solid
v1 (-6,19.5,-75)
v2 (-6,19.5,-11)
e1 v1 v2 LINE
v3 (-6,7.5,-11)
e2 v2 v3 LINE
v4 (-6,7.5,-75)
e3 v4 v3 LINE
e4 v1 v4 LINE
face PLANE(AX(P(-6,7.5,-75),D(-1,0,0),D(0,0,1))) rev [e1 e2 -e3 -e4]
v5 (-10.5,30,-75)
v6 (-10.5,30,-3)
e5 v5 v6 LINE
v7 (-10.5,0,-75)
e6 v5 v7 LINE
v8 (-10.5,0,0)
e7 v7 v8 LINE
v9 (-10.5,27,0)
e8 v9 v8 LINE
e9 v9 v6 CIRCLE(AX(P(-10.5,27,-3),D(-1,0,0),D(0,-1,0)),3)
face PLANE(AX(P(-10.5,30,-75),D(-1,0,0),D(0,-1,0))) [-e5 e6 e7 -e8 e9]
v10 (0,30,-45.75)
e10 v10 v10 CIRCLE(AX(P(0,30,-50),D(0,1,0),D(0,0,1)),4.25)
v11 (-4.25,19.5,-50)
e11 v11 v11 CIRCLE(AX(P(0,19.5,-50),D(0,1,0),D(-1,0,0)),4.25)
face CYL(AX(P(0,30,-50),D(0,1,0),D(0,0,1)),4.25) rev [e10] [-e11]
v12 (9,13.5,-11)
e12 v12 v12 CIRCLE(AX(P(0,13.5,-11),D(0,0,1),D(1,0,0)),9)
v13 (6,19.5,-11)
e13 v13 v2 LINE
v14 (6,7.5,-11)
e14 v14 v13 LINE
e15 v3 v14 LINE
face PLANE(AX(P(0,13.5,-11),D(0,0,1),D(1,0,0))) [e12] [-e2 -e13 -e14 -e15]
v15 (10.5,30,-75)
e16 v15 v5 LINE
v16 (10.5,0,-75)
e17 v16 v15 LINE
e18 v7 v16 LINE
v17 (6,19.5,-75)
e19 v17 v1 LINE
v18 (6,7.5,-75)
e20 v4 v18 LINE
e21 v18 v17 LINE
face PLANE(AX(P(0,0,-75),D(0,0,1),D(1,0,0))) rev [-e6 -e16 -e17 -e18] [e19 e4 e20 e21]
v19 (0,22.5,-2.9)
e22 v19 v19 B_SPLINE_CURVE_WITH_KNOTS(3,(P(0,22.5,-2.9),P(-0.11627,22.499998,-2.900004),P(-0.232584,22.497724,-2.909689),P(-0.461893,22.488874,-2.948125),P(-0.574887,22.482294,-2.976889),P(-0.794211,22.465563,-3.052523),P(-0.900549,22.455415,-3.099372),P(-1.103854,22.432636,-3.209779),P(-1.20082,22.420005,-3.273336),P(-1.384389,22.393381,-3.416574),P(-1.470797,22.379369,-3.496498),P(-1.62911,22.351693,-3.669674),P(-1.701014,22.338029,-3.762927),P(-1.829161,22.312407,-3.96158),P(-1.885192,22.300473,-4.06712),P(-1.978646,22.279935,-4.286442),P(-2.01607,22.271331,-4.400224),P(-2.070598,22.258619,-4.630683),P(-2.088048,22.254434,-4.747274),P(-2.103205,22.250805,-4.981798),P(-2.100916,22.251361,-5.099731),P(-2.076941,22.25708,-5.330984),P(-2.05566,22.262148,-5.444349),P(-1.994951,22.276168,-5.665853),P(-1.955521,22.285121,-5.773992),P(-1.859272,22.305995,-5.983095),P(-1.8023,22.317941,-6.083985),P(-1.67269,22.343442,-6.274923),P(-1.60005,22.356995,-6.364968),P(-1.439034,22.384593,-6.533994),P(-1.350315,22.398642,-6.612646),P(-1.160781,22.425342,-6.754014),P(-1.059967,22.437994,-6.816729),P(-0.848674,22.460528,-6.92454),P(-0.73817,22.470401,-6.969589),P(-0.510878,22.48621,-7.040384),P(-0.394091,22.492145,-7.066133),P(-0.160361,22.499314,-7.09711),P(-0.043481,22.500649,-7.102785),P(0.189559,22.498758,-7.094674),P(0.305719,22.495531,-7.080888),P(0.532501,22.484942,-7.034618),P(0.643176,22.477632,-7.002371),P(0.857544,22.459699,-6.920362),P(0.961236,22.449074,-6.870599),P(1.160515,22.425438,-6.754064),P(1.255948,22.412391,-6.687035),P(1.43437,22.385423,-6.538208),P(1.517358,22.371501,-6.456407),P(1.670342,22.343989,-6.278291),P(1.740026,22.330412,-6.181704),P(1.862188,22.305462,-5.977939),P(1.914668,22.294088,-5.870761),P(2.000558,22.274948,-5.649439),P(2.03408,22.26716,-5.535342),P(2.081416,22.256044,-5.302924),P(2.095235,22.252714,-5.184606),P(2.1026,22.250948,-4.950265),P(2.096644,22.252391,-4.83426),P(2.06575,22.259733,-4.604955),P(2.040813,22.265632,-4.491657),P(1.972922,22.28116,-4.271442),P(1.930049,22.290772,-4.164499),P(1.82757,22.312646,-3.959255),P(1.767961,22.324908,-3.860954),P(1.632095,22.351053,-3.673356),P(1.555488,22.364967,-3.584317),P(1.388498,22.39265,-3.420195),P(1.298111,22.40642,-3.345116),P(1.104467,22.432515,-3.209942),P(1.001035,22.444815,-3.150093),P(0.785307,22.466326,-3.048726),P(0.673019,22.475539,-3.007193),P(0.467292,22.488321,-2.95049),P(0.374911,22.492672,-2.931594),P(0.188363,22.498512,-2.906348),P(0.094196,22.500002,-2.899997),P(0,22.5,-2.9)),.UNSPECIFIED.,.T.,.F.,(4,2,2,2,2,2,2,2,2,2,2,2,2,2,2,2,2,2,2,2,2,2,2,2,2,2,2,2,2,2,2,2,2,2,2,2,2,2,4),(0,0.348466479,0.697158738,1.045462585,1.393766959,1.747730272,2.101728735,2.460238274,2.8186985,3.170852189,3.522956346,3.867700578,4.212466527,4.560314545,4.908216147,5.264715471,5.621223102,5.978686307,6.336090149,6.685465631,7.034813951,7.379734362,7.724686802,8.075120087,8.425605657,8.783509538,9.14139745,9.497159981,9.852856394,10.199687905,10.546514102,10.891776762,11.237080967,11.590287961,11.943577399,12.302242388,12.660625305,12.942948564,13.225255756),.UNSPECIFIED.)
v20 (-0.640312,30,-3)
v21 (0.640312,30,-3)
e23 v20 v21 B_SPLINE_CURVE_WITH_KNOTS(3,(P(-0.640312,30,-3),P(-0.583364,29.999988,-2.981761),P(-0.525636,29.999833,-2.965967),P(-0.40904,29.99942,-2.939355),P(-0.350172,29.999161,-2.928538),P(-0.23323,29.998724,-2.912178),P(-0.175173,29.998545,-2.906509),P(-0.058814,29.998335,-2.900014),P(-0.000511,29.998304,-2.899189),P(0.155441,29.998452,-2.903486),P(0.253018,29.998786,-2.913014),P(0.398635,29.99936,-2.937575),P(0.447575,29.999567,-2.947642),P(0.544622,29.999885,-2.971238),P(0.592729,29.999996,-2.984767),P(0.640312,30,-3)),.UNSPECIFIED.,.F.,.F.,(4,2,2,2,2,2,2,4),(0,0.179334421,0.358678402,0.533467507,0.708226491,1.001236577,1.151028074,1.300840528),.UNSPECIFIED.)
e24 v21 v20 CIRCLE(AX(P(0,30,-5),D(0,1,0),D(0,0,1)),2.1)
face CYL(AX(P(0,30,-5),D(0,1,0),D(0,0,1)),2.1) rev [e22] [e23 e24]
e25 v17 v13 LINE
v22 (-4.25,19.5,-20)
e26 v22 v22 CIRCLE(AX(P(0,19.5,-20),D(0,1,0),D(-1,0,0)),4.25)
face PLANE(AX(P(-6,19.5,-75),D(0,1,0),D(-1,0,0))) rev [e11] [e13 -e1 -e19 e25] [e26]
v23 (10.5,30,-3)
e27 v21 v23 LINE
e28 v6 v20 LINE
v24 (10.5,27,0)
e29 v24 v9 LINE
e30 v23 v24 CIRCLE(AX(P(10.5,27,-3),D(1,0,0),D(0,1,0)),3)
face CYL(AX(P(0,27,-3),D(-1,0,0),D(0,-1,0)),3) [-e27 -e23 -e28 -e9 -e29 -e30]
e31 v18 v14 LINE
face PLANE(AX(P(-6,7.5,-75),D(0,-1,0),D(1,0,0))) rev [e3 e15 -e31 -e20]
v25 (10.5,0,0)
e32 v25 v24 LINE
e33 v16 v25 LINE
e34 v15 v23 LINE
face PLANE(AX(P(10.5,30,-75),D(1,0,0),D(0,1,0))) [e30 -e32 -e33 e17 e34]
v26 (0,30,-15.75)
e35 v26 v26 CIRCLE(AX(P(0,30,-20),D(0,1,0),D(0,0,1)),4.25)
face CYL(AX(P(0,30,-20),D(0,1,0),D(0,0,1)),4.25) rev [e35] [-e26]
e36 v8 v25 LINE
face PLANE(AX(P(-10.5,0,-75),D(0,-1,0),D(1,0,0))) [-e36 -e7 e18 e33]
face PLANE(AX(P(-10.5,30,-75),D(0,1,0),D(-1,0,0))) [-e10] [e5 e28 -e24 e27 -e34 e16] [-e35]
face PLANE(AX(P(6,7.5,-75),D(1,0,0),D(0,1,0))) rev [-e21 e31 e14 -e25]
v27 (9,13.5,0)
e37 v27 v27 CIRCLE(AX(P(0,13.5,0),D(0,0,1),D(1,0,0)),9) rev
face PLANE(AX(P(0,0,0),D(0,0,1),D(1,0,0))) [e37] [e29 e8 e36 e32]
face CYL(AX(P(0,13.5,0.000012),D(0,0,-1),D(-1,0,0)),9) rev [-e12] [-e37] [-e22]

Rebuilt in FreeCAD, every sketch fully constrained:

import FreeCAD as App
import Part
import Sketcher

V = App.Vector


def edges_at(feature, points):
    """Names of the edges that pass closest to the given points."""
    edges = feature.Shape.Edges
    near = lambda p: min(range(len(edges)), key=lambda i: edges[i].distToShape(Part.Vertex(*p))[0])
    return sorted({f"Edge{near(p) + 1}" for p in points})


def add_polygon(sketch, points):
    """Adds a closed chain of lines whose ends are joined by coincident constraints."""
    first, n = sketch.GeometryCount, len(points)
    for a, b in zip(points, points[1:] + points[:1]):
        sketch.addGeometry(Part.LineSegment(App.Vector(*a, 0), App.Vector(*b, 0)), False)
    for i in range(n):
        sketch.addConstraint(Sketcher.Constraint("Coincident", first + i, 2, first + (i + 1) % n, 1))

doc = App.newDocument("Part")
body = doc.addObject("PartDesign::Body", "Body")

# Sketch on XY plane
sketch1 = body.newObject("Sketcher::SketchObject", "Sketch")
sketch1.AttachmentSupport = (doc.getObject("XY_Plane"), [""])
sketch1.MapMode = "FlatFace"
add_polygon(sketch1, [(-10, 30), (-10, 0), (10, 0), (10, 30)])  # lines 0-3
sketch1.addConstraint([
    Sketcher.Constraint("Vertical", 0),
    Sketcher.Constraint("Horizontal", 1),
    Sketcher.Constraint("Vertical", 2),
    Sketcher.Constraint("Horizontal", 3),
    Sketcher.Constraint("Symmetric", 0, 2, 1, 2, -1, 1),
    Sketcher.Constraint("DistanceX", 1, 1, 1, 2, 21.0),
    Sketcher.Constraint("DistanceY", 0, 2, 0, 1, 30.0),
])
pad1 = body.newObject("PartDesign::Pad", "Pad")
pad1.Profile = sketch1
pad1.Length = 75
pad1.Reversed = True

# Sketch on XY plane
sketch2 = body.newObject("Sketcher::SketchObject", "Sketch001")
sketch2.AttachmentSupport = (doc.getObject("XY_Plane"), [""])
sketch2.MapMode = "FlatFace"
sketch2.addGeometry(Part.Circle(V(0, 14, 0), V(0, 0, 1), 9), False)
sketch2.addConstraint([
    Sketcher.Constraint("PointOnObject", 0, 3, -2),
    Sketcher.Constraint("Diameter", 0, 18.0),
    Sketcher.Constraint("DistanceY", -1, 1, 0, 3, 13.5),
])
pocket1 = body.newObject("PartDesign::Pocket", "Pocket")
pocket1.Profile = sketch2
pocket1.Type = "TwoLengths"
pocket1.Length = 82.457044
pocket1.Length2 = 11
pocket1.Reversed = True

# Sketch on XY plane
sketch3 = body.newObject("Sketcher::SketchObject", "Sketch002")
sketch3.AttachmentSupport = (doc.getObject("XY_Plane"), [""])
sketch3.MapMode = "FlatFace"
sketch3.AttachmentOffset = App.Placement(V(0, 0, -11), App.Rotation())
add_polygon(sketch3, [(-6, 20), (-6, 8), (6, 8), (6, 20)])  # lines 0-3
sketch3.addConstraint([
    Sketcher.Constraint("Vertical", 0),
    Sketcher.Constraint("Horizontal", 1),
    Sketcher.Constraint("Vertical", 2),
    Sketcher.Constraint("Horizontal", 3),
    Sketcher.Constraint("Equal", 3, 0),
    Sketcher.Constraint("DistanceX", 1, 1, 1, 2, 12.0),
    Sketcher.Constraint("DistanceX", 0, 2, -1, 1, 6.0),
    Sketcher.Constraint("DistanceY", -1, 1, 0, 2, 7.5),
])
pocket2 = body.newObject("PartDesign::Pocket", "Pocket001")
pocket2.Profile = sketch3
pocket2.Type = "ThroughAll"
doc.recompute()

fillet = body.newObject("PartDesign::Fillet", "Fillet")
fillet.Base = (pocket2, edges_at(pocket2, [(0, 30, 0)]))
fillet.Radius = 3

# Sketch on XZ plane
sketch4 = body.newObject("Sketcher::SketchObject", "Sketch003")
sketch4.AttachmentSupport = (doc.getObject("XZ_Plane"), [""])
sketch4.MapMode = "FlatFace"
sketch4.AttachmentOffset = App.Placement(V(0, 0, -30), App.Rotation())
sketch4.addGeometry(Part.Circle(V(0, -5, 0), V(0, 0, 1), 2.1), False)
sketch4.addConstraint([
    Sketcher.Constraint("PointOnObject", 0, 3, -2),
    Sketcher.Constraint("Diameter", 0, 4.2),
    Sketcher.Constraint("DistanceY", 0, 3, -1, 1, 5.0),
])
pocket3 = body.newObject("PartDesign::Pocket", "Pocket002")
pocket3.Profile = sketch4
pocket3.Type = "UpToFirst"
pocket3.Reversed = True

# Sketch on XZ plane
sketch5 = body.newObject("Sketcher::SketchObject", "Sketch004")
sketch5.AttachmentSupport = (doc.getObject("XZ_Plane"), [""])
sketch5.MapMode = "FlatFace"
sketch5.AttachmentOffset = App.Placement(V(0, 0, -30), App.Rotation())
sketch5.addGeometry([
    Part.Circle(V(0, -20, 0), V(0, 0, 1), 4.2),
    Part.Circle(V(0, -50, 0), V(0, 0, 1), 4.2),
], False)
sketch5.addConstraint([
    Sketcher.Constraint("Equal", 0, 1),
    Sketcher.Constraint("PointOnObject", 0, 3, -2),
    Sketcher.Constraint("PointOnObject", 1, 3, -2),
    Sketcher.Constraint("Diameter", 0, 8.5),
    Sketcher.Constraint("DistanceY", 0, 3, -1, 1, 20.0),
    Sketcher.Constraint("DistanceY", 1, 3, -1, 1, 50.0),
])
doc.recompute()
hole = body.newObject("PartDesign::Hole", "Hole")
hole.Profile = sketch5
hole.ThreadType = "None"
hole.Diameter = 8.5
hole.DepthType = "Dimension"
hole.Depth = 10.5
hole.DrillPoint = "Flat"
hole.Reversed = True

doc.recompute()
